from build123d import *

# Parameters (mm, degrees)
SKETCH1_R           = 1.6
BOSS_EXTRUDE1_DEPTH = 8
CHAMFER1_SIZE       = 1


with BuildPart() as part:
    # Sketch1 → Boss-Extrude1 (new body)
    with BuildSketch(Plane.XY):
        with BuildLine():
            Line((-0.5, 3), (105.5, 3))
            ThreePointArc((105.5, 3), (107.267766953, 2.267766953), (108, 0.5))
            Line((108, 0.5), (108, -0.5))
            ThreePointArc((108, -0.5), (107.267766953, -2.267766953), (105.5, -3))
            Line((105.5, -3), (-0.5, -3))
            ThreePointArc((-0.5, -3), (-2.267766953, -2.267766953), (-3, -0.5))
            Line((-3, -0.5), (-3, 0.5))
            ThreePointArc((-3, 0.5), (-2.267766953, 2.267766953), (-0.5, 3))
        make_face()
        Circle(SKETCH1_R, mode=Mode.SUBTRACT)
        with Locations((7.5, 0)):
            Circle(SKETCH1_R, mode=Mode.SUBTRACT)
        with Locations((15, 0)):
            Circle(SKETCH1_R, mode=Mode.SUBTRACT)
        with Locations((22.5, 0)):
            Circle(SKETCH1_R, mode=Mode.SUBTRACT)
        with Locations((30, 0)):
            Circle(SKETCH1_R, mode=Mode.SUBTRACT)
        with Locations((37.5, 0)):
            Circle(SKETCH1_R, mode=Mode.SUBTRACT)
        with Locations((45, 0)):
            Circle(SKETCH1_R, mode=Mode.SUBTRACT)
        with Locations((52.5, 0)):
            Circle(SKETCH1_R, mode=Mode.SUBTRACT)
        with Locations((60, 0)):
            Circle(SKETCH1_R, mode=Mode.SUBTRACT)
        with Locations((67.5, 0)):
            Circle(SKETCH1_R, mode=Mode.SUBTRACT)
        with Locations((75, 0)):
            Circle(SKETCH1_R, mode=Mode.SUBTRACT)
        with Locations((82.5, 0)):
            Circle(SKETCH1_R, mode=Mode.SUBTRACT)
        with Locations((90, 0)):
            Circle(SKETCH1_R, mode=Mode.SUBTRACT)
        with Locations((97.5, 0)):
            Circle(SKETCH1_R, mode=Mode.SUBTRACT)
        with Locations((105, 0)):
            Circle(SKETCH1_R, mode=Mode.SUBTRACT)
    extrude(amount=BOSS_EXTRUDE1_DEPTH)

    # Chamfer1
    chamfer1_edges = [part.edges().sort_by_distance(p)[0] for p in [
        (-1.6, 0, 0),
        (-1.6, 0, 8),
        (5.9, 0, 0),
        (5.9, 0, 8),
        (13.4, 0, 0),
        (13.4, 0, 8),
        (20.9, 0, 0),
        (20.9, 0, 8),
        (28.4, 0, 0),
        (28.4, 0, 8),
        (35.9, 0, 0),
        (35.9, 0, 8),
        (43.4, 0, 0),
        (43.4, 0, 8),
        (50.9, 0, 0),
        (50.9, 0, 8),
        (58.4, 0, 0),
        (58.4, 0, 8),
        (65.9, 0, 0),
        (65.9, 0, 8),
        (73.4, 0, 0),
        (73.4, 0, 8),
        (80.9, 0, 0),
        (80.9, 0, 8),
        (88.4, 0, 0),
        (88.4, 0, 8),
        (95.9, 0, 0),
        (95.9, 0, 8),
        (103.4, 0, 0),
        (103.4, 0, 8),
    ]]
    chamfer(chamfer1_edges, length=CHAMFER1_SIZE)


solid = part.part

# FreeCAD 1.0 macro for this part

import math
import FreeCAD as App
import Part
import Sketcher


def edges_at(feature, points):
    """Names of the edges that pass closest to the given points."""
    edges = feature.Shape.Edges
    near = lambda p: min(range(len(edges)), key=lambda i: edges[i].distToShape(Part.Vertex(*p))[0])
    return sorted({f"Edge{near(p) + 1}" for p in points})

doc = App.newDocument("Part")
body = doc.addObject("PartDesign::Body", "Body")

# Sketch on XY plane
sketch1 = doc.addObject("Sketcher::SketchObject", "Sketch")
body.addObject(sketch1)
sketch1.AttachmentSupport = (doc.XY_Plane, [""])
sketch1.MapMode = "FlatFace"
sketch1.addGeometry(Part.LineSegment(App.Vector(105.5, 3, 0), App.Vector(-0.5, 3, 0)), False)
sketch1.addGeometry(Part.ArcOfCircle(Part.Circle(App.Vector(-0.5, 0.5, 0), App.Vector(0, 0, 1), 2.5), math.radians(90), math.radians(180)), False)
sketch1.addGeometry(Part.LineSegment(App.Vector(-3, 0.5, 0), App.Vector(-3, -0.5, 0)), False)
sketch1.addGeometry(Part.ArcOfCircle(Part.Circle(App.Vector(-0.5, -0.5, 0), App.Vector(0, 0, 1), 2.5), math.radians(180), math.radians(270)), False)
sketch1.addGeometry(Part.LineSegment(App.Vector(-0.5, -3, 0), App.Vector(105.5, -3, 0)), False)
sketch1.addGeometry(Part.ArcOfCircle(Part.Circle(App.Vector(105.5, -0.5, 0), App.Vector(0, 0, 1), 2.5), math.radians(-90), math.radians(0)), False)
sketch1.addGeometry(Part.LineSegment(App.Vector(108, -0.5, 0), App.Vector(108, 0.5, 0)), False)
sketch1.addGeometry(Part.ArcOfCircle(Part.Circle(App.Vector(105.5, 0.5, 0), App.Vector(0, 0, 1), 2.5), math.radians(0), math.radians(90)), False)
sketch1.addGeometry(Part.Circle(App.Vector(105, 0, 0), App.Vector(0, 0, 1), 1.6), False)
sketch1.addGeometry(Part.Circle(App.Vector(97.5, 0, 0), App.Vector(0, 0, 1), 1.6), False)
sketch1.addGeometry(Part.Circle(App.Vector(90, 0, 0), App.Vector(0, 0, 1), 1.6), False)
sketch1.addGeometry(Part.Circle(App.Vector(82.5, 0, 0), App.Vector(0, 0, 1), 1.6), False)
sketch1.addGeometry(Part.Circle(App.Vector(75, 0, 0), App.Vector(0, 0, 1), 1.6), False)
sketch1.addGeometry(Part.Circle(App.Vector(67.5, 0, 0), App.Vector(0, 0, 1), 1.6), False)
sketch1.addGeometry(Part.Circle(App.Vector(60, 0, 0), App.Vector(0, 0, 1), 1.6), False)
sketch1.addGeometry(Part.Circle(App.Vector(52.5, 0, 0), App.Vector(0, 0, 1), 1.6), False)
sketch1.addGeometry(Part.Circle(App.Vector(45, 0, 0), App.Vector(0, 0, 1), 1.6), False)
sketch1.addGeometry(Part.Circle(App.Vector(37.5, 0, 0), App.Vector(0, 0, 1), 1.6), False)
sketch1.addGeometry(Part.Circle(App.Vector(30, 0, 0), App.Vector(0, 0, 1), 1.6), False)
sketch1.addGeometry(Part.Circle(App.Vector(22.5, 0, 0), App.Vector(0, 0, 1), 1.6), False)
sketch1.addGeometry(Part.Circle(App.Vector(15, 0, 0), App.Vector(0, 0, 1), 1.6), False)
sketch1.addGeometry(Part.Circle(App.Vector(7.5, 0, 0), App.Vector(0, 0, 1), 1.6), False)
sketch1.addGeometry(Part.Circle(App.Vector(0, 0, 0), App.Vector(0, 0, 1), 1.6), False)
sketch1.addConstraint(Sketcher.Constraint("Tangent", 0, 2, 1, 1))
sketch1.addConstraint(Sketcher.Constraint("Tangent", 1, 2, 2, 1))
sketch1.addConstraint(Sketcher.Constraint("Tangent", 2, 2, 3, 1))
sketch1.addConstraint(Sketcher.Constraint("Tangent", 3, 2, 4, 1))
sketch1.addConstraint(Sketcher.Constraint("Tangent", 4, 2, 5, 1))
sketch1.addConstraint(Sketcher.Constraint("Tangent", 5, 2, 6, 1))
sketch1.addConstraint(Sketcher.Constraint("Tangent", 6, 2, 7, 1))
sketch1.addConstraint(Sketcher.Constraint("Tangent", 7, 2, 0, 1))
sketch1.addConstraint(Sketcher.Constraint("Horizontal", 0))
sketch1.addConstraint(Sketcher.Constraint("Vertical", 2))
sketch1.addConstraint(Sketcher.Constraint("Horizontal", 4))
sketch1.addConstraint(Sketcher.Constraint("Vertical", 6))
sketch1.addConstraint(Sketcher.Constraint("Coincident", 22, 3, -1, 1))
sketch1.addConstraint(Sketcher.Constraint("Equal", 1, 3))
sketch1.addConstraint(Sketcher.Constraint("Equal", 3, 5))
sketch1.addConstraint(Sketcher.Constraint("Equal", 5, 7))
sketch1.addConstraint(Sketcher.Constraint("Equal", 8, 9))
sketch1.addConstraint(Sketcher.Constraint("Equal", 9, 10))
sketch1.addConstraint(Sketcher.Constraint("Equal", 10, 11))
sketch1.addConstraint(Sketcher.Constraint("Equal", 11, 12))
sketch1.addConstraint(Sketcher.Constraint("Equal", 12, 13))
sketch1.addConstraint(Sketcher.Constraint("Equal", 13, 14))
sketch1.addConstraint(Sketcher.Constraint("Equal", 14, 15))
sketch1.addConstraint(Sketcher.Constraint("Equal", 15, 16))
sketch1.addConstraint(Sketcher.Constraint("Equal", 16, 17))
sketch1.addConstraint(Sketcher.Constraint("Equal", 17, 18))
sketch1.addConstraint(Sketcher.Constraint("Equal", 18, 19))
sketch1.addConstraint(Sketcher.Constraint("Equal", 19, 20))
sketch1.addConstraint(Sketcher.Constraint("Equal", 20, 21))
sketch1.addConstraint(Sketcher.Constraint("Equal", 21, 22))
sketch1.addConstraint(Sketcher.Constraint("PointOnObject", 8, 3, -1))
sketch1.addConstraint(Sketcher.Constraint("PointOnObject", 9, 3, -1))
sketch1.addConstraint(Sketcher.Constraint("PointOnObject", 10, 3, -1))
sketch1.addConstraint(Sketcher.Constraint("PointOnObject", 11, 3, -1))
sketch1.addConstraint(Sketcher.Constraint("PointOnObject", 12, 3, -1))
sketch1.addConstraint(Sketcher.Constraint("PointOnObject", 13, 3, -1))
sketch1.addConstraint(Sketcher.Constraint("PointOnObject", 14, 3, -1))
sketch1.addConstraint(Sketcher.Constraint("PointOnObject", 15, 3, -1))
sketch1.addConstraint(Sketcher.Constraint("PointOnObject", 16, 3, -1))
sketch1.addConstraint(Sketcher.Constraint("PointOnObject", 17, 3, -1))
sketch1.addConstraint(Sketcher.Constraint("PointOnObject", 18, 3, -1))
sketch1.addConstraint(Sketcher.Constraint("PointOnObject", 19, 3, -1))
sketch1.addConstraint(Sketcher.Constraint("PointOnObject", 20, 3, -1))
sketch1.addConstraint(Sketcher.Constraint("PointOnObject", 21, 3, -1))
sketch1.addConstraint(Sketcher.Constraint("Diameter", 8, 3.2))
sketch1.addConstraint(Sketcher.Constraint("Radius", 1, 2.5))
sketch1.addConstraint(Sketcher.Constraint("DistanceX", 0, 2, 0, 1, 106.0))
sketch1.addConstraint(Sketcher.Constraint("DistanceY", 2, 2, 2, 1, 1.0))
sketch1.addConstraint(Sketcher.Constraint("DistanceX", -1, 1, 8, 3, 105.0))
sketch1.addConstraint(Sketcher.Constraint("DistanceX", -1, 1, 10, 3, 90.0))
sketch1.addConstraint(Sketcher.Constraint("DistanceX", -1, 1, 12, 3, 75.0))
sketch1.addConstraint(Sketcher.Constraint("DistanceX", -1, 1, 14, 3, 60.0))
sketch1.addConstraint(Sketcher.Constraint("DistanceX", -1, 1, 16, 3, 45.0))
sketch1.addConstraint(Sketcher.Constraint("DistanceX", -1, 1, 18, 3, 30.0))
sketch1.addConstraint(Sketcher.Constraint("DistanceX", -1, 1, 20, 3, 15.0))
sketch1.addConstraint(Sketcher.Constraint("DistanceY", -1, 1, 0, 2, 3.0))
sketch1.addConstraint(Sketcher.Constraint("DistanceX", 1, 2, -1, 1, 3.0))
sketch1.addConstraint(Sketcher.Constraint("DistanceX", 9, 3, 5, 3, 8.0))
sketch1.addConstraint(Sketcher.Constraint("DistanceX", 11, 3, 9, 3, 15.0))
sketch1.addConstraint(Sketcher.Constraint("DistanceX", 13, 3, 11, 3, 15.0))
sketch1.addConstraint(Sketcher.Constraint("DistanceX", 15, 3, 13, 3, 15.0))
sketch1.addConstraint(Sketcher.Constraint("DistanceX", 17, 3, 15, 3, 15.0))
sketch1.addConstraint(Sketcher.Constraint("DistanceX", 19, 3, 17, 3, 15.0))
sketch1.addConstraint(Sketcher.Constraint("DistanceX", 1, 3, 21, 3, 8.0))
pad1 = doc.addObject("PartDesign::Pad", "Pad")
body.addObject(pad1)
pad1.Profile = sketch1
pad1.Length = 8
doc.recompute()

chamfer = doc.addObject("PartDesign::Chamfer", "Chamfer")
body.addObject(chamfer)
chamfer.Base = (pad1, edges_at(pad1, [
    (-1.6, 0, 0),
    (-1.6, 0, 8),
    (5.9, 0, 0),
    (5.9, 0, 8),
    (13.4, 0, 0),
    (13.4, 0, 8),
    (20.9, 0, 0),
    (20.9, 0, 8),
    (28.4, 0, 0),
    (28.4, 0, 8),
    (35.9, 0, 0),
    (35.9, 0, 8),
    (43.4, 0, 0),
    (43.4, 0, 8),
    (50.9, 0, 0),
    (50.9, 0, 8),
    (58.4, 0, 0),
    (58.4, 0, 8),
    (65.9, 0, 0),
    (65.9, 0, 8),
    (73.4, 0, 0),
    (73.4, 0, 8),
    (80.9, 0, 0),
    (80.9, 0, 8),
    (88.4, 0, 0),
    (88.4, 0, 8),
    (95.9, 0, 0),
    (95.9, 0, 8),
    (103.4, 0, 0),
    (103.4, 0, 8),
]))
chamfer.Size = 1

doc.recompute()
